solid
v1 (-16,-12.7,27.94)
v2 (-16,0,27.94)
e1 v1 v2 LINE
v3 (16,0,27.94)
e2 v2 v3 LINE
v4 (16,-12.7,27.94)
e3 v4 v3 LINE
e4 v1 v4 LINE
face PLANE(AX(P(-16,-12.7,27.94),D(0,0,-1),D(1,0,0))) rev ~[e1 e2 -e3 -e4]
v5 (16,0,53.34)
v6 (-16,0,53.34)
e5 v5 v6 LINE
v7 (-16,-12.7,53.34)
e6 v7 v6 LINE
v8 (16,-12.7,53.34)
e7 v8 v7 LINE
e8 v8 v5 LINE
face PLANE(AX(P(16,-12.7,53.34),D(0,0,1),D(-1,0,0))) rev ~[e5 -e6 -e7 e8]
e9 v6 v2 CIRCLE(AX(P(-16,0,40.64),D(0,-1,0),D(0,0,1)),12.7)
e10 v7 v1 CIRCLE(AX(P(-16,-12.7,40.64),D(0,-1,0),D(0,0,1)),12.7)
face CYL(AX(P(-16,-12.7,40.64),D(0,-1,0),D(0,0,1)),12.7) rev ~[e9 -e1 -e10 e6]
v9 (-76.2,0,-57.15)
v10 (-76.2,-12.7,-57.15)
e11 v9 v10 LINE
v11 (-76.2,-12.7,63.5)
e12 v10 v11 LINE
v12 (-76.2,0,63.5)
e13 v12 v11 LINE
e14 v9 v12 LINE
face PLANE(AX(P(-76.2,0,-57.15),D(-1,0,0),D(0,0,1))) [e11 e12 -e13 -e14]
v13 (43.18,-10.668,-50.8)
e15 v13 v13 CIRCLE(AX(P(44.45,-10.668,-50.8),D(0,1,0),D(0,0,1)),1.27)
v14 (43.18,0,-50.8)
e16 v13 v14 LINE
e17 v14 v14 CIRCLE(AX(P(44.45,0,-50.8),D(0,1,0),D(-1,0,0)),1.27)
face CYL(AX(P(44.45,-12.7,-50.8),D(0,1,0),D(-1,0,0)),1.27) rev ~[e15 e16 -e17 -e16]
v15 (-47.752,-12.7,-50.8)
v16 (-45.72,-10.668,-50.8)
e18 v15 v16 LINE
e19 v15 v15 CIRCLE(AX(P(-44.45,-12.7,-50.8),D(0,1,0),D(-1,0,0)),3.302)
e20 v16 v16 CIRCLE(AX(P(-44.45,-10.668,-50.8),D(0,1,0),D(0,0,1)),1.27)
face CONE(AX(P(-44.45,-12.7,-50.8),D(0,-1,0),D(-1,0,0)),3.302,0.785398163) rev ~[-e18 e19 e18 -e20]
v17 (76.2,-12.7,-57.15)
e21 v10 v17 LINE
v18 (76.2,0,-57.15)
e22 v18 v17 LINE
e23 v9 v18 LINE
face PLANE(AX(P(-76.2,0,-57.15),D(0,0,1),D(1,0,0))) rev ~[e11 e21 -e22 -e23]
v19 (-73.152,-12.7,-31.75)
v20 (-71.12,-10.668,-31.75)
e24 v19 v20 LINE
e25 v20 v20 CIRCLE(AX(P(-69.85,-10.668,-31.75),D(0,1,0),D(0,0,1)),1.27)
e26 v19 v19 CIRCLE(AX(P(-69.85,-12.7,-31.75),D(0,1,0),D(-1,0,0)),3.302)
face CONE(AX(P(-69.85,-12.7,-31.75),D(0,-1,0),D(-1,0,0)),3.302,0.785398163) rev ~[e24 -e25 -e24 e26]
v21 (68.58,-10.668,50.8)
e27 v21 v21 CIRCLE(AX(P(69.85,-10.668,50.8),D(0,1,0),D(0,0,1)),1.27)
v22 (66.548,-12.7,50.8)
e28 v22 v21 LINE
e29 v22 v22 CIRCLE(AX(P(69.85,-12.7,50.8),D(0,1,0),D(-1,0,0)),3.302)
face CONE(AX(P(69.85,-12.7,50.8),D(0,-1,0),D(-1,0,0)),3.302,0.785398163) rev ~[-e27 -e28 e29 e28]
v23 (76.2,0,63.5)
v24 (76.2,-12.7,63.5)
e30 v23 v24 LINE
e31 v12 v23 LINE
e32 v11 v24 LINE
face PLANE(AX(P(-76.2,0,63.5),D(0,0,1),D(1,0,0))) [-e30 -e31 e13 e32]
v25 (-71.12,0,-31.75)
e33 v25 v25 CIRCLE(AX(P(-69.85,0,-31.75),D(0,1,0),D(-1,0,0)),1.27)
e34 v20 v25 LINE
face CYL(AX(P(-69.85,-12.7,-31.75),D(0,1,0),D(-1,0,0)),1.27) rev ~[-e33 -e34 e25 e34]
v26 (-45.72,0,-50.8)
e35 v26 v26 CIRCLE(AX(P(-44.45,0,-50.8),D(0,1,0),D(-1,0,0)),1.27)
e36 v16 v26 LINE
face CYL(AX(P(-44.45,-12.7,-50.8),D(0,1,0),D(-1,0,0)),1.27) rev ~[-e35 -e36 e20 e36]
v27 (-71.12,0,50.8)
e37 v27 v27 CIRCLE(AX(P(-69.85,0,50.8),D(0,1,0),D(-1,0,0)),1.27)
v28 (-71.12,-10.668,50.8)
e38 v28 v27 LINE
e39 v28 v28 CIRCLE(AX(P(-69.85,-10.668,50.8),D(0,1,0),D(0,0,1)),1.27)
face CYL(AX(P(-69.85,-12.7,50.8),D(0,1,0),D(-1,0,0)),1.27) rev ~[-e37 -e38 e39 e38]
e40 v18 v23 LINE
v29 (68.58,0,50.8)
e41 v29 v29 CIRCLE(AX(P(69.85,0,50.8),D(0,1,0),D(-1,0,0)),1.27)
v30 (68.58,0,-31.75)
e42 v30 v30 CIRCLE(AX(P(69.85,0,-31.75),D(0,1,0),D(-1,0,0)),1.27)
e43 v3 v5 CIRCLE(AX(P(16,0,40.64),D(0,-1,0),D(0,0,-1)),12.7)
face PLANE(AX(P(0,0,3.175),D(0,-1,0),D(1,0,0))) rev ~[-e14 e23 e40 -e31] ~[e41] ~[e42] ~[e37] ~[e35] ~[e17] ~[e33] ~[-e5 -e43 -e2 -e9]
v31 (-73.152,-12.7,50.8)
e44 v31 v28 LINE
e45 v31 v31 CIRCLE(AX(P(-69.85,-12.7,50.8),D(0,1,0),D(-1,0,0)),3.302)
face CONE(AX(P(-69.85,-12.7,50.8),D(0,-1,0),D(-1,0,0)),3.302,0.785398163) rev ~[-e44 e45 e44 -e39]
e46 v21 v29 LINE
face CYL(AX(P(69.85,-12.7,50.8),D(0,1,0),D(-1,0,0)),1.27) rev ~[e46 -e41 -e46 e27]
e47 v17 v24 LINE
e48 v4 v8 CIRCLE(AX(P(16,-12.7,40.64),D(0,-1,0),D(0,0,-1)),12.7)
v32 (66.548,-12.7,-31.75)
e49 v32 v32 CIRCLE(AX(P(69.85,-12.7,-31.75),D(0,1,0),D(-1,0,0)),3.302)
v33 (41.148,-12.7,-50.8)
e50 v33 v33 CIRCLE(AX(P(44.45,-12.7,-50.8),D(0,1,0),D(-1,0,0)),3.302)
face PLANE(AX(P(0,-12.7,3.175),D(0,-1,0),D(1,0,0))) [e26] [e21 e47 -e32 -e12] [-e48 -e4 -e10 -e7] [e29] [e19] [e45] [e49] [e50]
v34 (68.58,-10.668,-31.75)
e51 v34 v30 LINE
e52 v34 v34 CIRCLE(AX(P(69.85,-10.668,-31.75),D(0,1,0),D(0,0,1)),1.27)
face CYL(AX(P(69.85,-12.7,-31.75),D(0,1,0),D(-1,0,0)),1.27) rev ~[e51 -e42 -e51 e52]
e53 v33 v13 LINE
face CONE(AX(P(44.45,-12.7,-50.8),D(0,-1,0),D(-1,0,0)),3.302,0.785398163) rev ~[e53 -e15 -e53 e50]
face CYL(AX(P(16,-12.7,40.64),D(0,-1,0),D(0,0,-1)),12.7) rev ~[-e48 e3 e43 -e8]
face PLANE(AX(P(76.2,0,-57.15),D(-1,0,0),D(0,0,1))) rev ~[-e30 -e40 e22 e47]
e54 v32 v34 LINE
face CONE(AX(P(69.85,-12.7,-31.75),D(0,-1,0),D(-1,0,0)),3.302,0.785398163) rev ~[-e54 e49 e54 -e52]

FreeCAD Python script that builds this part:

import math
import FreeCAD as App
import Part
import Sketcher
from FreeCAD import Vector
Q = App.Units.Quantity


def add_polygon(sketch, points):
    """Adds a closed chain of lines whose ends are joined by coincident constraints."""
    first, n = sketch.GeometryCount, len(points)
    for a, b in zip(points, points[1:] + points[:1]):
        sketch.addGeometry(Part.LineSegment(App.Vector(*a, 0), App.Vector(*b, 0)), False)
    for i in range(n):
        sketch.addConstraint(Sketcher.Constraint("Coincident", first + i, 2, first + (i + 1) % n, 1))

doc = App.newDocument("Part")
params = doc.addObject("Spreadsheet::Sheet", "Params")
for row, (alias, value) in enumerate([
    ("sketch1_width", "6 in"),
    ("sketch1_height", "4.75 in"),
    ("pad1_length", "0.5 in"),
    ("sketch2_diameter", "0.1 in"),
    ("hole_diameter", "0.1 in"),
    ("hole_csink_diameter", "0.26 in"),
    ("sketch3_radius", "0.5 in"),
], start=1):
    params.set(f"A{row}", alias)
    params.set(f"B{row}", "=" + value)
    params.setAlias(f"B{row}", alias)

body = doc.addObject("PartDesign::Body", "Body")

sketch1 = body.newObject("Sketcher::SketchObject", "Sketch")
sketch1.AttachmentSupport = (doc.getObject("XZ_Plane"), [""])
sketch1.MapMode = "FlatFace"
add_polygon(sketch1, [(-76, 64), (-76, -57), (76, -57), (76, 64)])
sketch1.addConstraint([
    Sketcher.Constraint("Vertical", 0),
    Sketcher.Constraint("Horizontal", 1),
    Sketcher.Constraint("Vertical", 2),
    Sketcher.Constraint("Horizontal", 3),
    Sketcher.Constraint("DistanceX", 1, 1, 1, 2, Q("6 in")),
    Sketcher.Constraint("DistanceX", 0, 2, -1, 1, Q("3 in")),
    Sketcher.Constraint("DistanceY", 0, 2, 0, 1, Q("4.75 in")),
    Sketcher.Constraint("DistanceY", -1, 1, 2, 2, Q("2.5 in")),
])
sketch1.setExpression("Constraints[8]", "Params.sketch1_width")
sketch1.setExpression("Constraints[10]", "Params.sketch1_height")
pad1 = body.newObject("PartDesign::Pad", "Pad")
pad1.Profile = sketch1
pad1.setExpression("Length", "Params.pad1_length")

sketch2 = body.newObject("Sketcher::SketchObject", "Sketch001")
sketch2.AttachmentSupport = (doc.getObject("XZ_Plane"), [""])
sketch2.MapMode = "FlatFace"
sketch2.AttachmentOffset = App.Placement(Vector(0, 0, 0.5 * 25.4), App.Rotation())
sketch2.addGeometry([
    Part.Circle(Vector(-69.8, 50.8, 0), Vector(0, 0, 1), 1.3),
    Part.Circle(Vector(-69.8, -31.8, 0), Vector(0, 0, 1), 1.3),
    Part.Circle(Vector(-44.5, -50.8, 0), Vector(0, 0, 1), 1.3),
    Part.Circle(Vector(44.5, -50.8, 0), Vector(0, 0, 1), 1.3),
    Part.Circle(Vector(69.8, -31.8, 0), Vector(0, 0, 1), 1.3),
    Part.Circle(Vector(69.8, 50.8, 0), Vector(0, 0, 1), 1.3),
], False)
sketch2.addConstraint([
    Sketcher.Constraint("Equal", 0, 1),
    Sketcher.Constraint("Equal", 1, 2),
    Sketcher.Constraint("Equal", 2, 3),
    Sketcher.Constraint("Equal", 3, 4),
    Sketcher.Constraint("Equal", 4, 5),
    Sketcher.Constraint("Symmetric", 2, 3, 3, 3, -2),
    Sketcher.Constraint("Symmetric", 1, 3, 4, 3, -2),
    Sketcher.Constraint("Symmetric", 0, 3, 5, 3, -2),
    Sketcher.Constraint("Vertical", 0, 3, 1, 3),
    Sketcher.Constraint("Diameter", 0, Q("0.1 in")),
    Sketcher.Constraint("DistanceY", -1, 1, 0, 3, Q("2 in")),
    Sketcher.Constraint("DistanceY", 2, 3, -1, 1, Q("2 in")),
    Sketcher.Constraint("DistanceX", 1, 3, 2, 3, Q("1 in")),
    Sketcher.Constraint("DistanceX", 2, 3, 3, 3, Q("3.5 in")),
    Sketcher.Constraint("DistanceY", 1, 3, -1, 1, Q("1.25 in")),
])
sketch2.setExpression("Constraints[9]", "Params.sketch2_diameter")
doc.recompute()
hole = body.newObject("PartDesign::Hole", "Hole")
hole.Profile = sketch2
hole.ThreadType = "None"
hole.setExpression("Diameter", "Params.hole_diameter")
hole.DepthType = "ThroughAll"
hole.HoleCutType = "Countersink"
hole.setExpression("HoleCutDiameter", "Params.hole_csink_diameter")
hole.HoleCutCountersinkAngle = 90

sketch3 = body.newObject("Sketcher::SketchObject", "Sketch002")
sketch3.AttachmentSupport = (doc.getObject("XZ_Plane"), [""])
sketch3.MapMode = "FlatFace"
sketch3.AttachmentOffset = App.Placement(Vector(0, 0, 0.5 * 25.4), App.Rotation())
sketch3.addGeometry([
    Part.ArcOfCircle(Part.Circle(Vector(-16, 41, 0), Vector(0, 0, 1), 13), math.radians(90), math.radians(270)),
    Part.LineSegment(Vector(-16, 28, 0), Vector(16, 28, 0)),
    Part.ArcOfCircle(Part.Circle(Vector(16, 41, 0), Vector(0, 0, 1), 13), math.radians(-90), math.radians(90)),
    Part.LineSegment(Vector(16, 53, 0), Vector(-16, 53, 0)),
], False)
sketch3.addConstraint([
    Sketcher.Constraint("Tangent", 0, 2, 1, 1),
    Sketcher.Constraint("Tangent", 1, 2, 2, 1),
    Sketcher.Constraint("Tangent", 2, 2, 3, 1),
    Sketcher.Constraint("Tangent", 3, 2, 0, 1),
    Sketcher.Constraint("Horizontal", 1),
    Sketcher.Constraint("Horizontal", 3),
    Sketcher.Constraint("Radius", 0, Q("0.5 in")),
    Sketcher.Constraint("DistanceY", -1, 1, 0, 3, Q("1.6 in")),
    Sketcher.Constraint("DistanceX", 1, 1, 1, 2, Q("32 mm")),
    Sketcher.Constraint("DistanceX", 0, 3, -1, 1, Q("16 mm")),
])
sketch3.setExpression("Constraints[6]", "Params.sketch3_radius")
pocket1 = body.newObject("PartDesign::Pocket", "Pocket")
pocket1.Profile = sketch3
pocket1.Type = "ThroughAll"

doc.recompute()
